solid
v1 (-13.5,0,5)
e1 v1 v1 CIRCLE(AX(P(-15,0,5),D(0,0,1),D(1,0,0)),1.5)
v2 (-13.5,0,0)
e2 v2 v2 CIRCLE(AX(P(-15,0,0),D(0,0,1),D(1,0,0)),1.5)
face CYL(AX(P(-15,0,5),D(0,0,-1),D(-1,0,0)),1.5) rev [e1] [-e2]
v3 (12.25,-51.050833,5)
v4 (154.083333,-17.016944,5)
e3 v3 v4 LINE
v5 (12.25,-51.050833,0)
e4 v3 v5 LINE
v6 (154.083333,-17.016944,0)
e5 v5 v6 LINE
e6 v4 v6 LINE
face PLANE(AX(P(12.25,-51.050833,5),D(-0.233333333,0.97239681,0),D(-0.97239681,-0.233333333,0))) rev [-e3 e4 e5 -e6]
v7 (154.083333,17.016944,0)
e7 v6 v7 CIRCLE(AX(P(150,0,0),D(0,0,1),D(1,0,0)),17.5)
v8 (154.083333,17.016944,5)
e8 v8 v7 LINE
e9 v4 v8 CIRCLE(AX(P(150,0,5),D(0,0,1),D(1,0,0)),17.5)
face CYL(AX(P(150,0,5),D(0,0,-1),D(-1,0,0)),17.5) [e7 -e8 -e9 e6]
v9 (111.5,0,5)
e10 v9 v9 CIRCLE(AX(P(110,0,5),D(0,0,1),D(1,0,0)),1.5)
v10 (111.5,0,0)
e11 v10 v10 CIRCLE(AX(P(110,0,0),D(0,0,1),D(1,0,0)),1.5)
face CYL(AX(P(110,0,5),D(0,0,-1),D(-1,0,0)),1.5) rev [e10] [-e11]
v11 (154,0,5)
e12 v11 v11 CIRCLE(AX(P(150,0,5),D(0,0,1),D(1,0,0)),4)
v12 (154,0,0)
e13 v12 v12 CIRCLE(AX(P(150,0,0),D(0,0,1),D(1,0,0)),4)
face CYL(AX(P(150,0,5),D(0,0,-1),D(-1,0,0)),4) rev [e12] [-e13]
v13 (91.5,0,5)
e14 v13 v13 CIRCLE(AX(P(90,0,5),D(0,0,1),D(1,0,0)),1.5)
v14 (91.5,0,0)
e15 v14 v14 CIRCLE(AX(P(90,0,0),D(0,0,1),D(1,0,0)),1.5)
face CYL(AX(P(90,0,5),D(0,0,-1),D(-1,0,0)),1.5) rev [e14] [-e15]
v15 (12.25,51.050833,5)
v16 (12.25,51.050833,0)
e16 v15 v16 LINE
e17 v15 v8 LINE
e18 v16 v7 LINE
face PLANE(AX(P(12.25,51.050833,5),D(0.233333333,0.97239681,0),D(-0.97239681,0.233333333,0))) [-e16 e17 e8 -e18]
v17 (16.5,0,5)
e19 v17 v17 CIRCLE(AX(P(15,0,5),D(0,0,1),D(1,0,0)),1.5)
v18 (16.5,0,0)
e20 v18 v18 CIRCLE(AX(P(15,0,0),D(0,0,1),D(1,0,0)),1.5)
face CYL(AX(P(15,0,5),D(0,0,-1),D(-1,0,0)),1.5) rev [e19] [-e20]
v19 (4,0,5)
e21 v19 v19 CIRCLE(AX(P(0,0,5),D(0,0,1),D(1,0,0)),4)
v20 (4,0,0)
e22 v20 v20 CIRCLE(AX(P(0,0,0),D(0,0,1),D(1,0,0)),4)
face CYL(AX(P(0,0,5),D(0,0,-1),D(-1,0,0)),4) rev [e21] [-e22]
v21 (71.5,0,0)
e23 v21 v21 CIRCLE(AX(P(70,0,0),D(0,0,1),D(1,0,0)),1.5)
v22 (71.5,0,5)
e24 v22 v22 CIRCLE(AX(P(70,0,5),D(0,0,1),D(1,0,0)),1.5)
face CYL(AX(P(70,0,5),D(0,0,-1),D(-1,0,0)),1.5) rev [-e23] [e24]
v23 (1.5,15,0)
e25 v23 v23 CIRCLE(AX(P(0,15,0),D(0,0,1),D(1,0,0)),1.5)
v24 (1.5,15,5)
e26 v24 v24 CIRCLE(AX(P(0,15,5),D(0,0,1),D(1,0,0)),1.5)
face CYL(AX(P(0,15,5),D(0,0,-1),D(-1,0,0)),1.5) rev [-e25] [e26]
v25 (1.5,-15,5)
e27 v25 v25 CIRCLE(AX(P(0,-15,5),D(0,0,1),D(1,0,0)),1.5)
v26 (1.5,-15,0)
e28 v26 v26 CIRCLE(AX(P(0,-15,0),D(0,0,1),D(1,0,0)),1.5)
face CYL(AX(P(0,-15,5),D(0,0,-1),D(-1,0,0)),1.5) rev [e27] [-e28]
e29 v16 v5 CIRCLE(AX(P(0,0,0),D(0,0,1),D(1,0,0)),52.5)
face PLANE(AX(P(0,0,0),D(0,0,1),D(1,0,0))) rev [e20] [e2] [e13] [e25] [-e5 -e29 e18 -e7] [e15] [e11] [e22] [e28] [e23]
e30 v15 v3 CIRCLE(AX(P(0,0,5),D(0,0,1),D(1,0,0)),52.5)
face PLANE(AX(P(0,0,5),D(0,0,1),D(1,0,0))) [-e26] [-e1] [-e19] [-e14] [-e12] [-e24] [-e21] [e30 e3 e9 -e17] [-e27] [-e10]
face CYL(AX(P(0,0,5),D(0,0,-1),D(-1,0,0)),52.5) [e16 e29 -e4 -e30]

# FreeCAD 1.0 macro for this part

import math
import FreeCAD as App
import Part
import Sketcher

V = App.Vector
Q = App.Units.Quantity

doc = App.newDocument("Part")
body = doc.addObject("PartDesign::Body", "Body")

# Sketch on XY plane
sketch1 = body.newObject("Sketcher::SketchObject", "Sketch")
sketch1.AttachmentSupport = (doc.getObject("XY_Plane"), [""])
sketch1.MapMode = "FlatFace"
sketch1.addGeometry(Part.ArcOfCircle(Part.Circle(V(0, 0, 0), V(0, 0, 1), 52.5), math.radians(76.506601), math.radians(283.493399)), False)
sketch1.addGeometry(Part.LineSegment(V(12.25, -51.050833, 0), V(154.083333, -17.016944, 0)), False)
sketch1.addGeometry(Part.ArcOfCircle(Part.Circle(V(150, 0, 0), V(0, 0, 1), 17.5), math.radians(-76.506601), math.radians(76.506601)), False)
sketch1.addGeometry(Part.LineSegment(V(154.083333, 17.016944, 0), V(12.25, 51.050833, 0)), False)
sketch1.addGeometry(Part.Circle(V(0, -15, 0), V(0, 0, 1), 1.5), False)
sketch1.addGeometry(Part.Circle(V(-15, 0, 0), V(0, 0, 1), 1.5), False)
sketch1.addGeometry(Part.Circle(V(0, 0, 0), V(0, 0, 1), 4), False)
sketch1.addGeometry(Part.Circle(V(15, 0, 0), V(0, 0, 1), 1.5), False)
sketch1.addGeometry(Part.Circle(V(0, 15, 0), V(0, 0, 1), 1.5), False)
sketch1.addGeometry(Part.Circle(V(70, 0, 0), V(0, 0, 1), 1.5), False)
sketch1.addGeometry(Part.Circle(V(90, 0, 0), V(0, 0, 1), 1.5), False)
sketch1.addGeometry(Part.Circle(V(110, 0, 0), V(0, 0, 1), 1.5), False)
sketch1.addGeometry(Part.Circle(V(150, 0, 0), V(0, 0, 1), 4), False)
sketch1.addConstraint(Sketcher.Constraint("Tangent", 0, 2, 1, 1))
sketch1.addConstraint(Sketcher.Constraint("Tangent", 1, 2, 2, 1))
sketch1.addConstraint(Sketcher.Constraint("Tangent", 2, 2, 3, 1))
sketch1.addConstraint(Sketcher.Constraint("Tangent", 3, 2, 0, 1))
sketch1.addConstraint(Sketcher.Constraint("Coincident", 0, 3, -1, 1))
sketch1.addConstraint(Sketcher.Constraint("Coincident", 6, 3, -1, 1))
sketch1.addConstraint(Sketcher.Constraint("Coincident", 12, 3, 2, 3))
sketch1.addConstraint(Sketcher.Constraint("Equal", 4, 5))
sketch1.addConstraint(Sketcher.Constraint("Equal", 5, 7))
sketch1.addConstraint(Sketcher.Constraint("Equal", 7, 8))
sketch1.addConstraint(Sketcher.Constraint("Equal", 8, 9))
sketch1.addConstraint(Sketcher.Constraint("Equal", 9, 10))
sketch1.addConstraint(Sketcher.Constraint("Equal", 10, 11))
sketch1.addConstraint(Sketcher.Constraint("Equal", 6, 12))
sketch1.addConstraint(Sketcher.Constraint("Symmetric", 5, 3, 7, 3, -1, 1))
sketch1.addConstraint(Sketcher.Constraint("Symmetric", 4, 3, 8, 3, -1, 1))
sketch1.addConstraint(Sketcher.Constraint("PointOnObject", 2, 3, -1))
sketch1.addConstraint(Sketcher.Constraint("PointOnObject", 4, 3, -2))
sketch1.addConstraint(Sketcher.Constraint("PointOnObject", 5, 3, -1))
sketch1.addConstraint(Sketcher.Constraint("PointOnObject", 9, 3, -1))
sketch1.addConstraint(Sketcher.Constraint("PointOnObject", 10, 3, -1))
sketch1.addConstraint(Sketcher.Constraint("PointOnObject", 11, 3, -1))
sketch1.addConstraint(Sketcher.Constraint("Diameter", 4, Q("3 mm")))
sketch1.addConstraint(Sketcher.Constraint("Diameter", 6, Q("8 mm")))
sketch1.addConstraint(Sketcher.Constraint("Radius", 0, Q("52.5 mm")))
sketch1.addConstraint(Sketcher.Constraint("Radius", 2, Q("17.5 mm")))
sketch1.addConstraint(Sketcher.Constraint("DistanceX", -1, 1, 2, 3, Q("150 mm")))
sketch1.addConstraint(Sketcher.Constraint("DistanceY", 4, 3, -1, 1, Q("15 mm")))
sketch1.addConstraint(Sketcher.Constraint("DistanceX", 5, 3, -1, 1, Q("15 mm")))
sketch1.addConstraint(Sketcher.Constraint("DistanceX", -1, 1, 9, 3, Q("70 mm")))
sketch1.addConstraint(Sketcher.Constraint("DistanceX", -1, 1, 10, 3, Q("90 mm")))
sketch1.addConstraint(Sketcher.Constraint("DistanceX", -1, 1, 11, 3, Q("110 mm")))
pad1 = body.newObject("PartDesign::Pad", "Pad")
pad1.Profile = sketch1
pad1.Length = 5

doc.recompute()
